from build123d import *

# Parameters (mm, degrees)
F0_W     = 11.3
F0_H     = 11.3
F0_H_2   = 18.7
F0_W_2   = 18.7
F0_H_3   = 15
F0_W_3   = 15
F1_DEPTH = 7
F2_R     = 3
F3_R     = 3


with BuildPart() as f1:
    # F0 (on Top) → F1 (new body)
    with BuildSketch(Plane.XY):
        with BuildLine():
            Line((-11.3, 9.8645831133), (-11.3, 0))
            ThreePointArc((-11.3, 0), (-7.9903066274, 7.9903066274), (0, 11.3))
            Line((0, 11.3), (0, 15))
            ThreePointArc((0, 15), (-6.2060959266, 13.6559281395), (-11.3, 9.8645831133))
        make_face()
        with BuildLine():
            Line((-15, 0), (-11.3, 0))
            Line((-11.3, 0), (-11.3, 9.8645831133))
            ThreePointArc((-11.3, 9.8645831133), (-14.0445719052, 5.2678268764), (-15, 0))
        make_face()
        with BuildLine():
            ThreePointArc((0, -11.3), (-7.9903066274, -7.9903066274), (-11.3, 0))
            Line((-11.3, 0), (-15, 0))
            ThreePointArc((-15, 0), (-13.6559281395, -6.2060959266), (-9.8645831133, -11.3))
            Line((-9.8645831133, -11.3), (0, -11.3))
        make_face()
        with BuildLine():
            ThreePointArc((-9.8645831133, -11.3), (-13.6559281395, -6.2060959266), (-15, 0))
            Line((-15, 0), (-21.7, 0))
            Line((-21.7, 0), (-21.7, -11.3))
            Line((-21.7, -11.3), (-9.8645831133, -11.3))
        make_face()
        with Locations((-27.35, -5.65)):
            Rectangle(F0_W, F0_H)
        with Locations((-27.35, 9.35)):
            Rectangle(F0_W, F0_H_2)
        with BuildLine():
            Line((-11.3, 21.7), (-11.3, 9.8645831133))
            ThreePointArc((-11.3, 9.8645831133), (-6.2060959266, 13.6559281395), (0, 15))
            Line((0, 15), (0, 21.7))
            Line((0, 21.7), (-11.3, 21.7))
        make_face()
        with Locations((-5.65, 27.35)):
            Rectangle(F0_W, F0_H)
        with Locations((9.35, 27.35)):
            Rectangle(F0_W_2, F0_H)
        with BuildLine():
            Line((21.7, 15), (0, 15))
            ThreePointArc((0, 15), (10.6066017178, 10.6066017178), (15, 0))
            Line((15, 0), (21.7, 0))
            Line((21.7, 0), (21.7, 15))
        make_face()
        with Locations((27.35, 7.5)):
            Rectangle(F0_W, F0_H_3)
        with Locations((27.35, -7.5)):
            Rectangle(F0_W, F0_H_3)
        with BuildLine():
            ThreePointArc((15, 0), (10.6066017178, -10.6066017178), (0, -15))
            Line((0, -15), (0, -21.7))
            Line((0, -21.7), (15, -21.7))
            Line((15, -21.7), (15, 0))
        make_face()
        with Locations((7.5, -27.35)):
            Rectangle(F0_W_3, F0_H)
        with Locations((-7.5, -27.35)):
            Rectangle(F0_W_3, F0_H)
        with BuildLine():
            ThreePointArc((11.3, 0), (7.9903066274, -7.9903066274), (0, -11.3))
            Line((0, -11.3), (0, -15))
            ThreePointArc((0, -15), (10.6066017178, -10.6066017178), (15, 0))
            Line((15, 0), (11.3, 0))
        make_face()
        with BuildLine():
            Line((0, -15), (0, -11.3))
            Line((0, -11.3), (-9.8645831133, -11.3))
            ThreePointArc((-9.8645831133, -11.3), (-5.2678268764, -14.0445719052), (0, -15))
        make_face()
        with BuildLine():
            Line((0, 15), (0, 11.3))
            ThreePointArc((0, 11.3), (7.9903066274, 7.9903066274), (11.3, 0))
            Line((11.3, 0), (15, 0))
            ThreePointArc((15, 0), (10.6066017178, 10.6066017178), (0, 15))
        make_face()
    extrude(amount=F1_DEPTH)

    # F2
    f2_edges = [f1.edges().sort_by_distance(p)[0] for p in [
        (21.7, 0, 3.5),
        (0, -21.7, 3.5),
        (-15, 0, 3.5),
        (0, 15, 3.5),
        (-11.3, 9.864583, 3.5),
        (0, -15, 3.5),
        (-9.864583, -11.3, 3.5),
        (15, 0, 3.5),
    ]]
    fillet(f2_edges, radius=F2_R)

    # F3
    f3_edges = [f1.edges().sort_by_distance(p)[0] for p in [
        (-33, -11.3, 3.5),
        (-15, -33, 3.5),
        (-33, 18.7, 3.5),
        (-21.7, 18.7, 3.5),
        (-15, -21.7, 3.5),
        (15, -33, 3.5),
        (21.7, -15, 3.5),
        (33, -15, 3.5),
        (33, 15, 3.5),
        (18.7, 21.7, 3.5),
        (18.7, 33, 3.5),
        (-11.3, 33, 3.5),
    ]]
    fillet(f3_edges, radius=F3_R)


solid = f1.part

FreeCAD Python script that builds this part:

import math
import FreeCAD as App
import Part
import Sketcher


def edges_at(feature, points):
    """Names of the edges that pass closest to the given points."""
    edges = feature.Shape.Edges
    near = lambda p: min(range(len(edges)), key=lambda i: edges[i].distToShape(Part.Vertex(*p))[0])
    return sorted({f"Edge{near(p) + 1}" for p in points})

doc = App.newDocument("Part")
params = doc.addObject("Spreadsheet::Sheet", "Params")
for row, (alias, value) in enumerate([
    ("sketch1_radius", "15 mm"),
    ("sketch1_radius2", "11.3 mm"),
    ("sketch1_width", "33 mm"),
    ("sketch1_width2", "6.7 mm"),
    ("pad1_length", "7 mm"),
    ("fillet_radius", "3 mm"),
    ("fillet2_radius", "3 mm"),
], start=1):
    params.set(f"A{row}", alias)
    params.set(f"B{row}", "=" + value)
    params.setAlias(f"B{row}", alias)

body = doc.addObject("PartDesign::Body", "Body")

sketch1 = body.newObject("Sketcher::SketchObject", "Sketch")
sketch1.AttachmentSupport = (doc.getObject("XY_Plane"), [""])
sketch1.MapMode = "FlatFace"
sketch1.addGeometry([
    Part.LineSegment(App.Vector(0, 15, 0), App.Vector(0, 22, 0)),
    Part.LineSegment(App.Vector(0, 22, 0), App.Vector(19, 22, 0)),
    Part.LineSegment(App.Vector(19, 22, 0), App.Vector(19, 33, 0)),
    Part.LineSegment(App.Vector(19, 33, 0), App.Vector(-11, 33, 0)),
    Part.LineSegment(App.Vector(-11, 33, 0), App.Vector(-11, 10, 0)),
    Part.ArcOfCircle(Part.Circle(App.Vector(0, 0, 0), App.Vector(0, 0, 1), 15), math.radians(139), math.radians(180)),
    Part.LineSegment(App.Vector(-15, 0, 0), App.Vector(-22, 0, 0)),
    Part.LineSegment(App.Vector(-22, 0, 0), App.Vector(-22, 19, 0)),
    Part.LineSegment(App.Vector(-22, 19, 0), App.Vector(-33, 19, 0)),
    Part.LineSegment(App.Vector(-33, 19, 0), App.Vector(-33, -11, 0)),
    Part.LineSegment(App.Vector(-33, -11, 0), App.Vector(-10, -11, 0)),
    Part.ArcOfCircle(Part.Circle(App.Vector(0, 0, 0), App.Vector(0, 0, 1), 15), math.radians(-131), math.radians(-90)),
    Part.LineSegment(App.Vector(0, -15, 0), App.Vector(0, -22, 0)),
    Part.LineSegment(App.Vector(0, -22, 0), App.Vector(-15, -22, 0)),
    Part.LineSegment(App.Vector(-15, -22, 0), App.Vector(-15, -33, 0)),
    Part.LineSegment(App.Vector(-15, -33, 0), App.Vector(15, -33, 0)),
    Part.LineSegment(App.Vector(15, -33, 0), App.Vector(15, 0, 0)),
    Part.LineSegment(App.Vector(15, 0, 0), App.Vector(22, 0, 0)),
    Part.LineSegment(App.Vector(22, 0, 0), App.Vector(22, -15, 0)),
    Part.LineSegment(App.Vector(22, -15, 0), App.Vector(33, -15, 0)),
    Part.LineSegment(App.Vector(33, -15, 0), App.Vector(33, 15, 0)),
    Part.LineSegment(App.Vector(33, 15, 0), App.Vector(0, 15, 0)),
    Part.ArcOfCircle(Part.Circle(App.Vector(0, 0, 0), App.Vector(0, 0, 1), 11), math.radians(90), math.radians(180)),
    Part.ArcOfCircle(Part.Circle(App.Vector(0, 0, 0), App.Vector(0, 0, 1), 11), math.radians(0), math.radians(90)),
    Part.ArcOfCircle(Part.Circle(App.Vector(0, 0, 0), App.Vector(0, 0, 1), 11), math.radians(-90), math.radians(0)),
    Part.ArcOfCircle(Part.Circle(App.Vector(0, 0, 0), App.Vector(0, 0, 1), 11), math.radians(180), math.radians(270)),
], False)
sketch1.addConstraint([
    Sketcher.Constraint("Coincident", 0, 2, 1, 1),
    Sketcher.Constraint("Coincident", 1, 2, 2, 1),
    Sketcher.Constraint("Coincident", 2, 2, 3, 1),
    Sketcher.Constraint("Coincident", 3, 2, 4, 1),
    Sketcher.Constraint("Coincident", 4, 2, 5, 1),
    Sketcher.Constraint("Coincident", 5, 2, 6, 1),
    Sketcher.Constraint("Coincident", 6, 2, 7, 1),
    Sketcher.Constraint("Coincident", 7, 2, 8, 1),
    Sketcher.Constraint("Coincident", 8, 2, 9, 1),
    Sketcher.Constraint("Coincident", 9, 2, 10, 1),
    Sketcher.Constraint("Coincident", 10, 2, 11, 1),
    Sketcher.Constraint("Coincident", 11, 2, 12, 1),
    Sketcher.Constraint("Coincident", 12, 2, 13, 1),
    Sketcher.Constraint("Coincident", 13, 2, 14, 1),
    Sketcher.Constraint("Coincident", 14, 2, 15, 1),
    Sketcher.Constraint("Coincident", 15, 2, 16, 1),
    Sketcher.Constraint("Coincident", 16, 2, 17, 1),
    Sketcher.Constraint("Coincident", 17, 2, 18, 1),
    Sketcher.Constraint("Coincident", 18, 2, 19, 1),
    Sketcher.Constraint("Coincident", 19, 2, 20, 1),
    Sketcher.Constraint("Coincident", 20, 2, 21, 1),
    Sketcher.Constraint("Coincident", 21, 2, 0, 1),
    Sketcher.Constraint("Tangent", 22, 1, 23, 2),
    Sketcher.Constraint("Tangent", 23, 1, 24, 2),
    Sketcher.Constraint("Tangent", 24, 1, 25, 2),
    Sketcher.Constraint("Tangent", 25, 1, 22, 2),
    Sketcher.Constraint("Vertical", 0),
    Sketcher.Constraint("Horizontal", 1),
    Sketcher.Constraint("Vertical", 2),
    Sketcher.Constraint("Horizontal", 3),
    Sketcher.Constraint("Vertical", 4),
    Sketcher.Constraint("Horizontal", 6),
    Sketcher.Constraint("Vertical", 7),
    Sketcher.Constraint("Horizontal", 8),
    Sketcher.Constraint("Vertical", 9),
    Sketcher.Constraint("Horizontal", 10),
    Sketcher.Constraint("Vertical", 12),
    Sketcher.Constraint("Horizontal", 13),
    Sketcher.Constraint("Vertical", 14),
    Sketcher.Constraint("Horizontal", 15),
    Sketcher.Constraint("Vertical", 16),
    Sketcher.Constraint("Horizontal", 17),
    Sketcher.Constraint("Vertical", 18),
    Sketcher.Constraint("Horizontal", 19),
    Sketcher.Constraint("Vertical", 20),
    Sketcher.Constraint("Horizontal", 21),
    Sketcher.Constraint("Coincident", 5, 3, -1, 1),
    Sketcher.Constraint("Coincident", 11, 3, -1, 1),
    Sketcher.Constraint("Coincident", 22, 3, -1, 1),
    Sketcher.Constraint("Equal", 5, 11),
    Sketcher.Constraint("Equal", 22, 23),
    Sketcher.Constraint("Symmetric", 0, 2, 12, 2, -1, 1),
    Sketcher.Constraint("Symmetric", 5, 2, 16, 2, -1, 1),
    Sketcher.Constraint("Symmetric", 6, 2, 17, 2, -2),
    Sketcher.Constraint("Symmetric", 11, 2, 21, 2, -1),
    Sketcher.Constraint("PointOnObject", 22, 1, -2),
    Sketcher.Constraint("PointOnObject", 23, 1, -1),
    Sketcher.Constraint("PointOnObject", 24, 1, -2),
    Sketcher.Constraint("PointOnObject", 25, 1, -1),
    Sketcher.Constraint("Horizontal", 11, 2, 18, 2),
    Sketcher.Constraint("Horizontal", 10, 2, 24, 1),
    Sketcher.Constraint("Vertical", 5, 2, 13, 2),
    Sketcher.Constraint("Vertical", 4, 2, 25, 1),
    Sketcher.Constraint("Equal", 3, 15),
    Sketcher.Constraint("Equal", 8, 19),
    Sketcher.Constraint("Equal", 17, 0),
    Sketcher.Constraint("Equal", 19, 2),
    Sketcher.Constraint("Equal", 1, 7),
    Sketcher.Constraint("Equal", 2, 14),
    Sketcher.Constraint("Radius", 5, 15.0),
    Sketcher.Constraint("Radius", 22, 11.3),
    Sketcher.Constraint("DistanceX", 21, 2, 21, 1, 33.0),
    Sketcher.Constraint("DistanceX", 6, 2, 6, 1, 6.7),
])
sketch1.setExpression("Constraints[69]", "Params.sketch1_radius")
sketch1.setExpression("Constraints[70]", "Params.sketch1_radius2")
sketch1.setExpression("Constraints[71]", "Params.sketch1_width")
sketch1.setExpression("Constraints[72]", "Params.sketch1_width2")
pad1 = body.newObject("PartDesign::Pad", "Pad")
pad1.Profile = sketch1
pad1.setExpression("Length", "Params.pad1_length")
doc.recompute()

fillet = body.newObject("PartDesign::Fillet", "Fillet")
fillet.Base = (pad1, edges_at(pad1, [
    (21.7, 0, 3.5),
    (0, -21.7, 3.5),
    (-15, 0, 3.5),
    (0, 15, 3.5),
    (-11.3, 9.865, 3.5),
    (0, -15, 3.5),
    (-9.865, -11.3, 3.5),
    (15, 0, 3.5),
]))
fillet.setExpression("Radius", "Params.fillet_radius")
doc.recompute()

fillet2 = body.newObject("PartDesign::Fillet", "Fillet001")
fillet2.Base = (fillet, edges_at(fillet, [
    (-33, -11.3, 3.5),
    (-15, -33, 3.5),
    (-33, 18.7, 3.5),
    (-21.7, 18.7, 3.5),
    (-15, -21.7, 3.5),
    (15, -33, 3.5),
    (21.7, -15, 3.5),
    (33, -15, 3.5),
    (33, 15, 3.5),
    (18.7, 21.7, 3.5),
    (18.7, 33, 3.5),
    (-11.3, 33, 3.5),
]))
fillet2.setExpression("Radius", "Params.fillet2_radius")

doc.recompute()
